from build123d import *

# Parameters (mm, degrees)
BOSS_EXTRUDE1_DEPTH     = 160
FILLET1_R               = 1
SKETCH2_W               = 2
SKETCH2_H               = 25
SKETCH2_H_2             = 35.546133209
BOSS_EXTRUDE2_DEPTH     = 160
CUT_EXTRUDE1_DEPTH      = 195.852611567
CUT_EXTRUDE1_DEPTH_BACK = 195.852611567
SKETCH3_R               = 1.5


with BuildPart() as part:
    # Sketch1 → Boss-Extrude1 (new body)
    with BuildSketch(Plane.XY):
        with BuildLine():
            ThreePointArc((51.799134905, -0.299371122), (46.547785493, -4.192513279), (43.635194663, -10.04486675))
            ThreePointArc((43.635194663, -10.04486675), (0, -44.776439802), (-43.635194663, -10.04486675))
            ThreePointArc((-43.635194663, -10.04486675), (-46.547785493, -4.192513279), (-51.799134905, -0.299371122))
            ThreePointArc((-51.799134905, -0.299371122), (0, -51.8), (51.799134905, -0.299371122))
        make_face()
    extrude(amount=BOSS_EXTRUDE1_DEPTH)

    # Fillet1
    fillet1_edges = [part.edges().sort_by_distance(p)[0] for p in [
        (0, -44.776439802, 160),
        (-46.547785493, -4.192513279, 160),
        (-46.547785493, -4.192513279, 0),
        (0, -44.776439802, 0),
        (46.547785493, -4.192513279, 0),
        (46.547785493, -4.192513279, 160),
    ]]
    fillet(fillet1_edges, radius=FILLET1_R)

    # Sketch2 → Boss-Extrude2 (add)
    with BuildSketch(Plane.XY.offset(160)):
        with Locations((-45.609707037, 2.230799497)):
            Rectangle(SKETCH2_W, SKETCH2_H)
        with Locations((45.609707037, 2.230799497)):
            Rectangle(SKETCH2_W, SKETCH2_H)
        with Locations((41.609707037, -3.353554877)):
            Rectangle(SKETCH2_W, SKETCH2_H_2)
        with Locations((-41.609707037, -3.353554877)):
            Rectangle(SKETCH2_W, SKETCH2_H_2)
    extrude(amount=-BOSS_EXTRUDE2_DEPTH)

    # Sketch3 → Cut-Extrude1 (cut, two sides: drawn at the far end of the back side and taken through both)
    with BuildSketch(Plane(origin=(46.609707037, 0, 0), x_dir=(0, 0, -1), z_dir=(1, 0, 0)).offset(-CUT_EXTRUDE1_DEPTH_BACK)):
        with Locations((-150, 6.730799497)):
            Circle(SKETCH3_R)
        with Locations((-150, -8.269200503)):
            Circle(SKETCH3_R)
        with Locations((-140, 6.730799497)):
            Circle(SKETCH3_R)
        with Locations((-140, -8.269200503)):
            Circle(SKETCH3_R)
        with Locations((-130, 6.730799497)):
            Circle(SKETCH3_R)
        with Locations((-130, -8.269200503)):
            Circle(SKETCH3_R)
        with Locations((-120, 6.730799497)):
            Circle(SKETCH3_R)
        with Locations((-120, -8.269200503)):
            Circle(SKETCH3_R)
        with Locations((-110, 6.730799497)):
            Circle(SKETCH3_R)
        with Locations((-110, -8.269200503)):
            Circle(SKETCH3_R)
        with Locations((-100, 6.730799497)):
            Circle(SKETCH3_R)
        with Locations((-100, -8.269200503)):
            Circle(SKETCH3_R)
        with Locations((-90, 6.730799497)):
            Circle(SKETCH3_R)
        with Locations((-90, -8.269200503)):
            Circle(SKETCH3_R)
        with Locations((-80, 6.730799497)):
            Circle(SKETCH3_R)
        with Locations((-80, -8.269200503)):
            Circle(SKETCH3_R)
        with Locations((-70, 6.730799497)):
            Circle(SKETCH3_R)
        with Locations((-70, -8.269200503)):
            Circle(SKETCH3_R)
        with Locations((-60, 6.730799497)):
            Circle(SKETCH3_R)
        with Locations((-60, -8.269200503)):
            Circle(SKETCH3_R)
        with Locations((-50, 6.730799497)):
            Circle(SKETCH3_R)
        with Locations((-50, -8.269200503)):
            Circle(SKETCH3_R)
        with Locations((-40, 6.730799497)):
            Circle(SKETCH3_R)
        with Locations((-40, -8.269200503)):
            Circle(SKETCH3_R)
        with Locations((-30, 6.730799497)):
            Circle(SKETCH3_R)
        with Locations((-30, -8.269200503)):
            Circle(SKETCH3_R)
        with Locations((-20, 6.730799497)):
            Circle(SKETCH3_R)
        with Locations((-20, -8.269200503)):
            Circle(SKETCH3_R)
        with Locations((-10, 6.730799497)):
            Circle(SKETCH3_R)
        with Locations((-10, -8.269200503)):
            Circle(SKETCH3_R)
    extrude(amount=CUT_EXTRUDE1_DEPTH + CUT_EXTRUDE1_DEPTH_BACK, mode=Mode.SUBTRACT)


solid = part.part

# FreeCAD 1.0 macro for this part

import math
import FreeCAD as App
import Part
import Sketcher

V = App.Vector
Q = App.Units.Quantity


def edges_at(feature, points):
    """Names of the edges that pass closest to the given points."""
    edges = feature.Shape.Edges
    near = lambda p: min(range(len(edges)), key=lambda i: edges[i].distToShape(Part.Vertex(*p))[0])
    return sorted({f"Edge{near(p) + 1}" for p in points})

doc = App.newDocument("Part")
body = doc.addObject("PartDesign::Body", "Body")

sketch1 = body.newObject("Sketcher::SketchObject", "Sketch")
sketch1.AttachmentSupport = (doc.getObject("XY_Plane"), [""])
sketch1.MapMode = "FlatFace"
sketch1.addGeometry(Part.ArcOfCircle(Part.Circle(V(57, -13, 0), V(0, 0, 1), 14), math.radians(113), math.radians(167)), False)
sketch1.addGeometry(Part.ArcOfCircle(Part.Circle(V(0, 0, 0), V(0, 0, 1), 45), math.radians(-167), math.radians(-13)), False)
sketch1.addGeometry(Part.ArcOfCircle(Part.Circle(V(-57, -13, 0), V(0, 0, 1), 14), math.radians(13), math.radians(67)), False)
sketch1.addGeometry(Part.ArcOfCircle(Part.Circle(V(0, 0, 0), V(0, 0, 1), 52), math.radians(-180), math.radians(0)), False)
sketch1.addConstraint(Sketcher.Constraint("Tangent", 0, 2, 1, 2))
sketch1.addConstraint(Sketcher.Constraint("Tangent", 1, 1, 2, 1))
sketch1.addConstraint(Sketcher.Constraint("Coincident", 2, 2, 3, 1))
sketch1.addConstraint(Sketcher.Constraint("Coincident", 3, 2, 0, 1))
sketch1.addConstraint(Sketcher.Constraint("Coincident", 1, 3, -1, 1))
sketch1.addConstraint(Sketcher.Constraint("Coincident", 3, 3, -1, 1))
sketch1.addConstraint(Sketcher.Constraint("Equal", 0, 2))
sketch1.addConstraint(Sketcher.Constraint("Horizontal", 0, 3, 2, 3))
sketch1.addConstraint(Sketcher.Constraint("Radius", 3, Q("51.8 mm")))
sketch1.addConstraint(Sketcher.Constraint("Radius", 1, Q("44.77644 mm")))
sketch1.addConstraint(Sketcher.Constraint("Radius", 0, Q("14.006528 mm")))
sketch1.addConstraint(Sketcher.Constraint("DistanceX", -1, 1, 0, 3, Q("57.284729 mm")))
pad1 = body.newObject("PartDesign::Pad", "Pad")
pad1.Profile = sketch1
pad1.Length = 160
doc.recompute()

fillet = body.newObject("PartDesign::Fillet", "Fillet")
fillet.Base = (pad1, edges_at(pad1, [
    (0, -44.776, 160),
    (-46.548, -4.193, 160),
    (-46.548, -4.193, 0),
    (0, -44.776, 0),
    (46.548, -4.193, 0),
    (46.548, -4.193, 160),
]))
fillet.Radius = 1

sketch2 = body.newObject("Sketcher::SketchObject", "Sketch001")
sketch2.AttachmentSupport = (doc.getObject("XY_Plane"), [""])
sketch2.MapMode = "FlatFace"
sketch2.AttachmentOffset = App.Placement(V(0, 0, 160), App.Rotation())
sketch2.addGeometry(Part.LineSegment(V(-46.6, 14.7, 0), V(-46.6, -10.3, 0)), False)
sketch2.addGeometry(Part.LineSegment(V(-46.6, -10.3, 0), V(-44.6, -10.3, 0)), False)
sketch2.addGeometry(Part.LineSegment(V(-44.6, -10.3, 0), V(-44.6, 14.7, 0)), False)
sketch2.addGeometry(Part.LineSegment(V(-44.6, 14.7, 0), V(-46.6, 14.7, 0)), False)
sketch2.addGeometry(Part.LineSegment(V(44.6, 14.7, 0), V(44.6, -10.3, 0)), False)
sketch2.addGeometry(Part.LineSegment(V(44.6, -10.3, 0), V(46.6, -10.3, 0)), False)
sketch2.addGeometry(Part.LineSegment(V(46.6, -10.3, 0), V(46.6, 14.7, 0)), False)
sketch2.addGeometry(Part.LineSegment(V(46.6, 14.7, 0), V(44.6, 14.7, 0)), False)
sketch2.addGeometry(Part.LineSegment(V(40.6, 14.4, 0), V(40.6, -21.1, 0)), False)
sketch2.addGeometry(Part.LineSegment(V(40.6, -21.1, 0), V(42.6, -21.1, 0)), False)
sketch2.addGeometry(Part.LineSegment(V(42.6, -21.1, 0), V(42.6, 14.4, 0)), False)
sketch2.addGeometry(Part.LineSegment(V(42.6, 14.4, 0), V(40.6, 14.4, 0)), False)
sketch2.addGeometry(Part.LineSegment(V(-42.6, 14.4, 0), V(-42.6, -21.1, 0)), False)
sketch2.addGeometry(Part.LineSegment(V(-42.6, -21.1, 0), V(-40.6, -21.1, 0)), False)
sketch2.addGeometry(Part.LineSegment(V(-40.6, -21.1, 0), V(-40.6, 14.4, 0)), False)
sketch2.addGeometry(Part.LineSegment(V(-40.6, 14.4, 0), V(-42.6, 14.4, 0)), False)
sketch2.addConstraint(Sketcher.Constraint("Coincident", 0, 2, 1, 1))
sketch2.addConstraint(Sketcher.Constraint("Coincident", 1, 2, 2, 1))
sketch2.addConstraint(Sketcher.Constraint("Coincident", 2, 2, 3, 1))
sketch2.addConstraint(Sketcher.Constraint("Coincident", 3, 2, 0, 1))
sketch2.addConstraint(Sketcher.Constraint("Coincident", 4, 2, 5, 1))
sketch2.addConstraint(Sketcher.Constraint("Coincident", 5, 2, 6, 1))
sketch2.addConstraint(Sketcher.Constraint("Coincident", 6, 2, 7, 1))
sketch2.addConstraint(Sketcher.Constraint("Coincident", 7, 2, 4, 1))
sketch2.addConstraint(Sketcher.Constraint("Coincident", 8, 2, 9, 1))
sketch2.addConstraint(Sketcher.Constraint("Coincident", 9, 2, 10, 1))
sketch2.addConstraint(Sketcher.Constraint("Coincident", 10, 2, 11, 1))
sketch2.addConstraint(Sketcher.Constraint("Coincident", 11, 2, 8, 1))
sketch2.addConstraint(Sketcher.Constraint("Coincident", 12, 2, 13, 1))
sketch2.addConstraint(Sketcher.Constraint("Coincident", 13, 2, 14, 1))
sketch2.addConstraint(Sketcher.Constraint("Coincident", 14, 2, 15, 1))
sketch2.addConstraint(Sketcher.Constraint("Coincident", 15, 2, 12, 1))
sketch2.addConstraint(Sketcher.Constraint("Vertical", 0))
sketch2.addConstraint(Sketcher.Constraint("Horizontal", 1))
sketch2.addConstraint(Sketcher.Constraint("Vertical", 2))
sketch2.addConstraint(Sketcher.Constraint("Horizontal", 3))
sketch2.addConstraint(Sketcher.Constraint("Vertical", 4))
sketch2.addConstraint(Sketcher.Constraint("Horizontal", 5))
sketch2.addConstraint(Sketcher.Constraint("Vertical", 6))
sketch2.addConstraint(Sketcher.Constraint("Horizontal", 7))
sketch2.addConstraint(Sketcher.Constraint("Vertical", 8))
sketch2.addConstraint(Sketcher.Constraint("Horizontal", 9))
sketch2.addConstraint(Sketcher.Constraint("Vertical", 10))
sketch2.addConstraint(Sketcher.Constraint("Horizontal", 11))
sketch2.addConstraint(Sketcher.Constraint("Vertical", 12))
sketch2.addConstraint(Sketcher.Constraint("Horizontal", 13))
sketch2.addConstraint(Sketcher.Constraint("Vertical", 14))
sketch2.addConstraint(Sketcher.Constraint("Horizontal", 15))
sketch2.addConstraint(Sketcher.Constraint("Symmetric", 1, 2, 4, 2, -2))
sketch2.addConstraint(Sketcher.Constraint("Symmetric", 3, 2, 6, 2, -2))
sketch2.addConstraint(Sketcher.Constraint("Symmetric", 9, 2, 12, 2, -2))
sketch2.addConstraint(Sketcher.Constraint("Symmetric", 11, 2, 14, 2, -2))
sketch2.addConstraint(Sketcher.Constraint("Equal", 7, 9))
sketch2.addConstraint(Sketcher.Constraint("DistanceX", 1, 1, 1, 2, Q("2 mm")))
sketch2.addConstraint(Sketcher.Constraint("DistanceY", 0, 2, 0, 1, Q("25 mm")))
sketch2.addConstraint(Sketcher.Constraint("DistanceX", 8, 2, 4, 2, Q("4 mm")))
sketch2.addConstraint(Sketcher.Constraint("DistanceY", 0, 2, -1, 1, Q("10.269201 mm")))
sketch2.addConstraint(Sketcher.Constraint("DistanceY", 8, 2, 8, 1, Q("35.546133 mm")))
sketch2.addConstraint(Sketcher.Constraint("DistanceY", 8, 2, -1, 1, Q("21.126621 mm")))
sketch2.addConstraint(Sketcher.Constraint("DistanceX", 0, 2, -1, 1, Q("46.609707 mm")))
pad2 = body.newObject("PartDesign::Pad", "Pad001")
pad2.Profile = sketch2
pad2.Length = 160
pad2.Reversed = True

sketch3 = body.newObject("Sketcher::SketchObject", "Sketch002")
sketch3.AttachmentSupport = (doc.getObject("YZ_Plane"), [""])
sketch3.MapMode = "FlatFace"
sketch3.AttachmentOffset = App.Placement(V(0, 0, 46.609707), App.Rotation())
sketch3.addGeometry(Part.Circle(V(6.7, 150, 0), V(0, 0, 1), 1.5), False)
sketch3.addGeometry(Part.Circle(V(-8.3, 150, 0), V(0, 0, 1), 1.5), False)
sketch3.addGeometry(Part.Circle(V(6.7, 140, 0), V(0, 0, 1), 1.5), False)
sketch3.addGeometry(Part.Circle(V(-8.3, 140, 0), V(0, 0, 1), 1.5), False)
sketch3.addGeometry(Part.Circle(V(6.7, 130, 0), V(0, 0, 1), 1.5), False)
sketch3.addGeometry(Part.Circle(V(-8.3, 130, 0), V(0, 0, 1), 1.5), False)
sketch3.addGeometry(Part.Circle(V(6.7, 120, 0), V(0, 0, 1), 1.5), False)
sketch3.addGeometry(Part.Circle(V(-8.3, 120, 0), V(0, 0, 1), 1.5), False)
sketch3.addGeometry(Part.Circle(V(6.7, 110, 0), V(0, 0, 1), 1.5), False)
sketch3.addGeometry(Part.Circle(V(-8.3, 110, 0), V(0, 0, 1), 1.5), False)
sketch3.addGeometry(Part.Circle(V(6.7, 100, 0), V(0, 0, 1), 1.5), False)
sketch3.addGeometry(Part.Circle(V(-8.3, 100, 0), V(0, 0, 1), 1.5), False)
sketch3.addGeometry(Part.Circle(V(6.7, 90, 0), V(0, 0, 1), 1.5), False)
sketch3.addGeometry(Part.Circle(V(-8.3, 90, 0), V(0, 0, 1), 1.5), False)
sketch3.addGeometry(Part.Circle(V(6.7, 80, 0), V(0, 0, 1), 1.5), False)
sketch3.addGeometry(Part.Circle(V(-8.3, 80, 0), V(0, 0, 1), 1.5), False)
sketch3.addGeometry(Part.Circle(V(6.7, 70, 0), V(0, 0, 1), 1.5), False)
sketch3.addGeometry(Part.Circle(V(-8.3, 70, 0), V(0, 0, 1), 1.5), False)
sketch3.addGeometry(Part.Circle(V(6.7, 60, 0), V(0, 0, 1), 1.5), False)
sketch3.addGeometry(Part.Circle(V(-8.3, 60, 0), V(0, 0, 1), 1.5), False)
sketch3.addGeometry(Part.Circle(V(6.7, 50, 0), V(0, 0, 1), 1.5), False)
sketch3.addGeometry(Part.Circle(V(-8.3, 50, 0), V(0, 0, 1), 1.5), False)
sketch3.addGeometry(Part.Circle(V(6.7, 40, 0), V(0, 0, 1), 1.5), False)
sketch3.addGeometry(Part.Circle(V(-8.3, 40, 0), V(0, 0, 1), 1.5), False)
sketch3.addGeometry(Part.Circle(V(6.7, 30, 0), V(0, 0, 1), 1.5), False)
sketch3.addGeometry(Part.Circle(V(-8.3, 30, 0), V(0, 0, 1), 1.5), False)
sketch3.addGeometry(Part.Circle(V(6.7, 20, 0), V(0, 0, 1), 1.5), False)
sketch3.addGeometry(Part.Circle(V(-8.3, 20, 0), V(0, 0, 1), 1.5), False)
sketch3.addGeometry(Part.Circle(V(6.7, 10, 0), V(0, 0, 1), 1.5), False)
sketch3.addGeometry(Part.Circle(V(-8.3, 10, 0), V(0, 0, 1), 1.5), False)
sketch3.addConstraint(Sketcher.Constraint("Equal", 0, 1))
sketch3.addConstraint(Sketcher.Constraint("Equal", 1, 2))
sketch3.addConstraint(Sketcher.Constraint("Equal", 2, 3))
sketch3.addConstraint(Sketcher.Constraint("Equal", 3, 4))
sketch3.addConstraint(Sketcher.Constraint("Equal", 4, 5))
sketch3.addConstraint(Sketcher.Constraint("Equal", 5, 6))
sketch3.addConstraint(Sketcher.Constraint("Equal", 6, 7))
sketch3.addConstraint(Sketcher.Constraint("Equal", 7, 8))
sketch3.addConstraint(Sketcher.Constraint("Equal", 8, 9))
sketch3.addConstraint(Sketcher.Constraint("Equal", 9, 10))
sketch3.addConstraint(Sketcher.Constraint("Equal", 10, 11))
sketch3.addConstraint(Sketcher.Constraint("Equal", 11, 12))
sketch3.addConstraint(Sketcher.Constraint("Equal", 12, 13))
sketch3.addConstraint(Sketcher.Constraint("Equal", 13, 14))
sketch3.addConstraint(Sketcher.Constraint("Equal", 14, 15))
sketch3.addConstraint(Sketcher.Constraint("Equal", 15, 16))
sketch3.addConstraint(Sketcher.Constraint("Equal", 16, 17))
sketch3.addConstraint(Sketcher.Constraint("Equal", 17, 18))
sketch3.addConstraint(Sketcher.Constraint("Equal", 18, 19))
sketch3.addConstraint(Sketcher.Constraint("Equal", 19, 20))
sketch3.addConstraint(Sketcher.Constraint("Equal", 20, 21))
sketch3.addConstraint(Sketcher.Constraint("Equal", 21, 22))
sketch3.addConstraint(Sketcher.Constraint("Equal", 22, 23))
sketch3.addConstraint(Sketcher.Constraint("Equal", 23, 24))
sketch3.addConstraint(Sketcher.Constraint("Equal", 24, 25))
sketch3.addConstraint(Sketcher.Constraint("Equal", 25, 26))
sketch3.addConstraint(Sketcher.Constraint("Equal", 26, 27))
sketch3.addConstraint(Sketcher.Constraint("Equal", 27, 28))
sketch3.addConstraint(Sketcher.Constraint("Equal", 28, 29))
sketch3.addConstraint(Sketcher.Constraint("Horizontal", 0, 3, 1, 3))
sketch3.addConstraint(Sketcher.Constraint("Horizontal", 2, 3, 3, 3))
sketch3.addConstraint(Sketcher.Constraint("Horizontal", 4, 3, 5, 3))
sketch3.addConstraint(Sketcher.Constraint("Horizontal", 6, 3, 7, 3))
sketch3.addConstraint(Sketcher.Constraint("Horizontal", 8, 3, 9, 3))
sketch3.addConstraint(Sketcher.Constraint("Horizontal", 10, 3, 11, 3))
sketch3.addConstraint(Sketcher.Constraint("Horizontal", 12, 3, 13, 3))
sketch3.addConstraint(Sketcher.Constraint("Horizontal", 14, 3, 15, 3))
sketch3.addConstraint(Sketcher.Constraint("Horizontal", 16, 3, 17, 3))
sketch3.addConstraint(Sketcher.Constraint("Horizontal", 18, 3, 19, 3))
sketch3.addConstraint(Sketcher.Constraint("Horizontal", 20, 3, 21, 3))
sketch3.addConstraint(Sketcher.Constraint("Horizontal", 22, 3, 23, 3))
sketch3.addConstraint(Sketcher.Constraint("Horizontal", 24, 3, 25, 3))
sketch3.addConstraint(Sketcher.Constraint("Horizontal", 26, 3, 27, 3))
sketch3.addConstraint(Sketcher.Constraint("Horizontal", 28, 3, 29, 3))
sketch3.addConstraint(Sketcher.Constraint("Vertical", 0, 3, 2, 3))
sketch3.addConstraint(Sketcher.Constraint("Vertical", 1, 3, 3, 3))
sketch3.addConstraint(Sketcher.Constraint("Vertical", 2, 3, 4, 3))
sketch3.addConstraint(Sketcher.Constraint("Vertical", 3, 3, 5, 3))
sketch3.addConstraint(Sketcher.Constraint("Vertical", 4, 3, 6, 3))
sketch3.addConstraint(Sketcher.Constraint("Vertical", 5, 3, 7, 3))
sketch3.addConstraint(Sketcher.Constraint("Vertical", 6, 3, 8, 3))
sketch3.addConstraint(Sketcher.Constraint("Vertical", 7, 3, 9, 3))
sketch3.addConstraint(Sketcher.Constraint("Vertical", 8, 3, 10, 3))
sketch3.addConstraint(Sketcher.Constraint("Vertical", 9, 3, 11, 3))
sketch3.addConstraint(Sketcher.Constraint("Vertical", 10, 3, 12, 3))
sketch3.addConstraint(Sketcher.Constraint("Vertical", 11, 3, 13, 3))
sketch3.addConstraint(Sketcher.Constraint("Vertical", 12, 3, 14, 3))
sketch3.addConstraint(Sketcher.Constraint("Vertical", 13, 3, 15, 3))
sketch3.addConstraint(Sketcher.Constraint("Vertical", 14, 3, 16, 3))
sketch3.addConstraint(Sketcher.Constraint("Vertical", 15, 3, 17, 3))
sketch3.addConstraint(Sketcher.Constraint("Vertical", 16, 3, 18, 3))
sketch3.addConstraint(Sketcher.Constraint("Vertical", 17, 3, 19, 3))
sketch3.addConstraint(Sketcher.Constraint("Vertical", 18, 3, 20, 3))
sketch3.addConstraint(Sketcher.Constraint("Vertical", 19, 3, 21, 3))
sketch3.addConstraint(Sketcher.Constraint("Vertical", 20, 3, 22, 3))
sketch3.addConstraint(Sketcher.Constraint("Vertical", 21, 3, 23, 3))
sketch3.addConstraint(Sketcher.Constraint("Vertical", 22, 3, 24, 3))
sketch3.addConstraint(Sketcher.Constraint("Vertical", 23, 3, 25, 3))
sketch3.addConstraint(Sketcher.Constraint("Vertical", 24, 3, 26, 3))
sketch3.addConstraint(Sketcher.Constraint("Vertical", 25, 3, 27, 3))
sketch3.addConstraint(Sketcher.Constraint("Vertical", 26, 3, 28, 3))
sketch3.addConstraint(Sketcher.Constraint("Vertical", 27, 3, 29, 3))
sketch3.addConstraint(Sketcher.Constraint("Diameter", 0, Q("3 mm")))
sketch3.addConstraint(Sketcher.Constraint("DistanceY", -1, 1, 0, 3, Q("150 mm")))
sketch3.addConstraint(Sketcher.Constraint("DistanceY", -1, 1, 2, 3, Q("140 mm")))
sketch3.addConstraint(Sketcher.Constraint("DistanceY", -1, 1, 4, 3, Q("130 mm")))
sketch3.addConstraint(Sketcher.Constraint("DistanceY", -1, 1, 6, 3, Q("120 mm")))
sketch3.addConstraint(Sketcher.Constraint("DistanceY", -1, 1, 8, 3, Q("110 mm")))
sketch3.addConstraint(Sketcher.Constraint("DistanceY", -1, 1, 10, 3, Q("100 mm")))
sketch3.addConstraint(Sketcher.Constraint("DistanceY", -1, 1, 12, 3, Q("90 mm")))
sketch3.addConstraint(Sketcher.Constraint("DistanceY", -1, 1, 14, 3, Q("80 mm")))
sketch3.addConstraint(Sketcher.Constraint("DistanceY", -1, 1, 16, 3, Q("70 mm")))
sketch3.addConstraint(Sketcher.Constraint("DistanceY", -1, 1, 18, 3, Q("60 mm")))
sketch3.addConstraint(Sketcher.Constraint("DistanceY", -1, 1, 20, 3, Q("50 mm")))
sketch3.addConstraint(Sketcher.Constraint("DistanceY", -1, 1, 22, 3, Q("40 mm")))
sketch3.addConstraint(Sketcher.Constraint("DistanceY", -1, 1, 24, 3, Q("30 mm")))
sketch3.addConstraint(Sketcher.Constraint("DistanceY", -1, 1, 26, 3, Q("20 mm")))
sketch3.addConstraint(Sketcher.Constraint("DistanceY", -1, 1, 28, 3, Q("10 mm")))
sketch3.addConstraint(Sketcher.Constraint("DistanceX", 1, 3, 0, 3, Q("15 mm")))
sketch3.addConstraint(Sketcher.Constraint("DistanceX", -1, 1, 0, 3, Q("6.730799 mm")))
pocket1 = body.newObject("PartDesign::Pocket", "Pocket")
pocket1.Profile = sketch3
pocket1.Type = "ThroughAll"
pocket1.Midplane = True

doc.recompute()
